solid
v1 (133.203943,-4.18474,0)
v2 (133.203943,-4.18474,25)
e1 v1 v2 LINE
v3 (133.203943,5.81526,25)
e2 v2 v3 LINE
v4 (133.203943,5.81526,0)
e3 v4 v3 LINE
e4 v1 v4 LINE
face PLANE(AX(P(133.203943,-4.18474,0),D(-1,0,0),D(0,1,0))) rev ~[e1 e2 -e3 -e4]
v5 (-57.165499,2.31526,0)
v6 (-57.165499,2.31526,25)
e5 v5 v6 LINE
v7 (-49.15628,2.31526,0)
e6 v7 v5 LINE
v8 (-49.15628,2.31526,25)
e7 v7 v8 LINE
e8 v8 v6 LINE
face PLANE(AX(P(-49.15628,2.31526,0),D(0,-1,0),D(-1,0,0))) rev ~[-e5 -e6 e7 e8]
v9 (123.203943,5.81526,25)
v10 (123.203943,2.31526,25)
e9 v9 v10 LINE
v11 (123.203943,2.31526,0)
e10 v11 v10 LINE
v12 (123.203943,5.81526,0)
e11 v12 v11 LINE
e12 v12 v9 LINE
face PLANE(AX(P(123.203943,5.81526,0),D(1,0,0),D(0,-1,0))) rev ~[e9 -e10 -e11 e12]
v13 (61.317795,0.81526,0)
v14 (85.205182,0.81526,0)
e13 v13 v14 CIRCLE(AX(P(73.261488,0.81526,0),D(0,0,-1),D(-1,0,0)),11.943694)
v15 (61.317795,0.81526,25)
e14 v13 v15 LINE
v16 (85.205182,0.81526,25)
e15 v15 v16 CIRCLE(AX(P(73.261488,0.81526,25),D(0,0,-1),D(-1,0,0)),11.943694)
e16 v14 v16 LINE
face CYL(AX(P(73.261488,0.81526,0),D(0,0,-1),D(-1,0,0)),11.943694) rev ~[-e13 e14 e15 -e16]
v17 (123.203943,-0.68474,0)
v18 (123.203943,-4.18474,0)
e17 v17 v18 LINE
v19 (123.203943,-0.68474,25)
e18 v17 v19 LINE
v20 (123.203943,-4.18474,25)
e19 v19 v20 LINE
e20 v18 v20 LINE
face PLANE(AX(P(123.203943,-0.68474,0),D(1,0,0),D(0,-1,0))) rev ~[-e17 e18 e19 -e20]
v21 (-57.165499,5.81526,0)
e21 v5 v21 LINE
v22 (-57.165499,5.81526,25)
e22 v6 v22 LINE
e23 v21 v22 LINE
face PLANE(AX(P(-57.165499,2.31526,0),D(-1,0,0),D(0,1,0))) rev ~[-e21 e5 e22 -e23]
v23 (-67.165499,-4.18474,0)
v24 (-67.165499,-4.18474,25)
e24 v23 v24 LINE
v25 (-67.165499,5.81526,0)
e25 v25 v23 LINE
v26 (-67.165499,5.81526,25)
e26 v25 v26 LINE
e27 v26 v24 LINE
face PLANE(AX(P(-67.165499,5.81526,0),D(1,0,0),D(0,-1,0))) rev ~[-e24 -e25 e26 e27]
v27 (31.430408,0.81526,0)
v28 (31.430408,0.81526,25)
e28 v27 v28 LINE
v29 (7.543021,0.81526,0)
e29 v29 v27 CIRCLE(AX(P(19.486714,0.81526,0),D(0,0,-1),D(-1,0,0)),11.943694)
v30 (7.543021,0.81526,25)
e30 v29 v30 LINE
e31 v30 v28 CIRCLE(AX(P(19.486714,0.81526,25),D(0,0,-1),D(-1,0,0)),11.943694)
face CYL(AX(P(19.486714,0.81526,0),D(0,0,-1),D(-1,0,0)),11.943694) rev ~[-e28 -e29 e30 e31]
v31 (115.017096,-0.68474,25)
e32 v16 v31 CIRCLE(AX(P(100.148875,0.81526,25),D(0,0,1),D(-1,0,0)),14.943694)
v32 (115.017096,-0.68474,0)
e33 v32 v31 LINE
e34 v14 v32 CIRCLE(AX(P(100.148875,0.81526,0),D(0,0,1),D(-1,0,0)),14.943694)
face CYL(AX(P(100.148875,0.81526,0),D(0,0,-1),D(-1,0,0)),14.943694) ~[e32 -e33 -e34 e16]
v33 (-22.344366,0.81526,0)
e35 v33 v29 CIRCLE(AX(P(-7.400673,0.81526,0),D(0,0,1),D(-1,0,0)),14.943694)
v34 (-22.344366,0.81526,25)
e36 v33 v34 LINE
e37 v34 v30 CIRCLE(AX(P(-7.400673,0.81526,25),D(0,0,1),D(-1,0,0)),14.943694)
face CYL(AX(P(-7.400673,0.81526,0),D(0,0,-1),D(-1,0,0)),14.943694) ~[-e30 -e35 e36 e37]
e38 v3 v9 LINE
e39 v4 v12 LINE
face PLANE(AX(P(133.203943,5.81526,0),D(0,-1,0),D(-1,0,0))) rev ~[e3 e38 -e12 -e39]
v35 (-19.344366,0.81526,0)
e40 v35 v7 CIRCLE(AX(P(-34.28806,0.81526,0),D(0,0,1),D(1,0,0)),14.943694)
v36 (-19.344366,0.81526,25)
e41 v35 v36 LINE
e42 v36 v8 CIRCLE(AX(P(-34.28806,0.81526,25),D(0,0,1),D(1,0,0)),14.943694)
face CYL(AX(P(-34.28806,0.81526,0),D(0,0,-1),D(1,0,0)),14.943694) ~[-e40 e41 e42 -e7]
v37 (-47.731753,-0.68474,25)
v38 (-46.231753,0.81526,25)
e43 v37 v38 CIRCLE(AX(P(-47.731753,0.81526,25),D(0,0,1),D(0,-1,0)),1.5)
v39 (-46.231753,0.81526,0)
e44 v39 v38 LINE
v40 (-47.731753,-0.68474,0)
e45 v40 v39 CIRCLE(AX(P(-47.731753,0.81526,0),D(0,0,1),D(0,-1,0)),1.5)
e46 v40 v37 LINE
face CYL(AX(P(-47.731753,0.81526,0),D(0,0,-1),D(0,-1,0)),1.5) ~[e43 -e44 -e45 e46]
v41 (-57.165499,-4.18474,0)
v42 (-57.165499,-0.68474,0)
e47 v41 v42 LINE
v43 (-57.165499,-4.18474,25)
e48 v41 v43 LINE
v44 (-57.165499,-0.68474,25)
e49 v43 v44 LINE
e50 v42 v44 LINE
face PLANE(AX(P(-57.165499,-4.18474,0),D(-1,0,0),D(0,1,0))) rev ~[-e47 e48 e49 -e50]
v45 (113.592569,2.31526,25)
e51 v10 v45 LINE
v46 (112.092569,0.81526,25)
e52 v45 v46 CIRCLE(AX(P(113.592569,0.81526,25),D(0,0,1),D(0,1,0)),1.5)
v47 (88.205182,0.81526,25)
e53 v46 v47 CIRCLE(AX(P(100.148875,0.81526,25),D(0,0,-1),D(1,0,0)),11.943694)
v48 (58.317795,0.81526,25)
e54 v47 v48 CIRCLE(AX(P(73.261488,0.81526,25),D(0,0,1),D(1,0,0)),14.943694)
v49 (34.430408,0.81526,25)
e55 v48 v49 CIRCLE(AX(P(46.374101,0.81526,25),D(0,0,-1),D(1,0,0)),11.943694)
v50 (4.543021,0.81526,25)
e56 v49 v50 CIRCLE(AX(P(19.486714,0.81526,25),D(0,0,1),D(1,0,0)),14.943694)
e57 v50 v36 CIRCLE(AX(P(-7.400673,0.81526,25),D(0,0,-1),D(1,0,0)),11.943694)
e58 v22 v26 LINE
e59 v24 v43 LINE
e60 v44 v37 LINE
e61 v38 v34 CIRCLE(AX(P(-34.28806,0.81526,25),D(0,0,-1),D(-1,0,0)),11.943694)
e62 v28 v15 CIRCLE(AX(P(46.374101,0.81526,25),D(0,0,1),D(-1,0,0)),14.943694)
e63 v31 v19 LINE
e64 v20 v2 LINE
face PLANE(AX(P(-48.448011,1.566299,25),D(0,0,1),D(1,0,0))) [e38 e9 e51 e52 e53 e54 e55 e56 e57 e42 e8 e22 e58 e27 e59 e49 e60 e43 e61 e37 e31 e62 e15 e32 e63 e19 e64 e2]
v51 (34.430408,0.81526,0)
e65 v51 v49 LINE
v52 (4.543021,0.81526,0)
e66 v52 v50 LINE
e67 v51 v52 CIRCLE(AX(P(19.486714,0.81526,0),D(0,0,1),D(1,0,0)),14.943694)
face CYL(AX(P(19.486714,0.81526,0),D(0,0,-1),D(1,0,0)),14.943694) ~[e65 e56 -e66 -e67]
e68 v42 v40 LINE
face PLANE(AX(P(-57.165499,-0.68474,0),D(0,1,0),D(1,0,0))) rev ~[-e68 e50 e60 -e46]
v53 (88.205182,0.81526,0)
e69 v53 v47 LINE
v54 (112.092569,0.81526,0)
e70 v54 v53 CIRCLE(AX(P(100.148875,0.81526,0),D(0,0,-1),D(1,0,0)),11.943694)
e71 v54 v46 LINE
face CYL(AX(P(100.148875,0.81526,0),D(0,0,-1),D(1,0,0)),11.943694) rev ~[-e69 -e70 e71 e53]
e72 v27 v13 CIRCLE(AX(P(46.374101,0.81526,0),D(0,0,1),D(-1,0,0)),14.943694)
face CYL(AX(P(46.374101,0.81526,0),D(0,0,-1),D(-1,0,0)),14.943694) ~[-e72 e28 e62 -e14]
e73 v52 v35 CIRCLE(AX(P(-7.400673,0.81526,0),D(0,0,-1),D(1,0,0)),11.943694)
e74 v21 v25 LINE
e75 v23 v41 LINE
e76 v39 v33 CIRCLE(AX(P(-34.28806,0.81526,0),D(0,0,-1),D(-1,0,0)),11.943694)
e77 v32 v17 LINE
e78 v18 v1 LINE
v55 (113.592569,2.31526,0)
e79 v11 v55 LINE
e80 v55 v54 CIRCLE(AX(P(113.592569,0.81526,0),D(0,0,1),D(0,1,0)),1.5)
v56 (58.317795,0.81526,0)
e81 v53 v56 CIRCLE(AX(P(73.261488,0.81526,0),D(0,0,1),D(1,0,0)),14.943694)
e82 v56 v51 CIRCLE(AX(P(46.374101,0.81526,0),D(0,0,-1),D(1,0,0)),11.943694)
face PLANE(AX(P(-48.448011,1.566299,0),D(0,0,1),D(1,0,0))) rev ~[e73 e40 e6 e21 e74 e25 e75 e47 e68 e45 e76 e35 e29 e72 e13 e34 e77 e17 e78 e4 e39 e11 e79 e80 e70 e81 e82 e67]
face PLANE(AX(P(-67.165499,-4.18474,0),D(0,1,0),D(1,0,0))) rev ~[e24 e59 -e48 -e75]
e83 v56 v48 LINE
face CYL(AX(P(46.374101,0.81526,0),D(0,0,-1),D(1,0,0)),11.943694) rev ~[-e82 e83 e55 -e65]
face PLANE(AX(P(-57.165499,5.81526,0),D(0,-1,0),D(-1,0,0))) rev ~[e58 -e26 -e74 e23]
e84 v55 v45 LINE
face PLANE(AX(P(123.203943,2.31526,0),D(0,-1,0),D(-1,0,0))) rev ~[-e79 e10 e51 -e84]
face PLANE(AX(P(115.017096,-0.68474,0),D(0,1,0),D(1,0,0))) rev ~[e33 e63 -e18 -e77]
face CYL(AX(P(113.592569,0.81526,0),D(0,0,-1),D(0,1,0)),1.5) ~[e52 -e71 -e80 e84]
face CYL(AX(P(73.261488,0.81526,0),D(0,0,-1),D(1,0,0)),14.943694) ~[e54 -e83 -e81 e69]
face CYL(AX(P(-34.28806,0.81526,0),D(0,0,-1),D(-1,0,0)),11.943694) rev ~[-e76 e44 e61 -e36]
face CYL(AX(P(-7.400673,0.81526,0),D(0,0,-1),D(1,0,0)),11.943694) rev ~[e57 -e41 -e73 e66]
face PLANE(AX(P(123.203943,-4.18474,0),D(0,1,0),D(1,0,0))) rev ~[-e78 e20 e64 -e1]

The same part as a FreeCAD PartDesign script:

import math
import FreeCAD as App
import Part
import Sketcher

doc = App.newDocument("Part")
params = doc.addObject("Spreadsheet::Sheet", "Params")
for row, (alias, value) in enumerate([
    ("sketch1_radius", "1.5 mm"),
    ("sketch1_width", "10 mm"),
    ("pad1_length", "25 mm"),
], start=1):
    params.set(f"A{row}", alias)
    params.set(f"B{row}", "=" + value)
    params.setAlias(f"B{row}", alias)

body = doc.addObject("PartDesign::Body", "Body")

# Sketch on XY plane
sketch1 = doc.addObject("Sketcher::SketchObject", "Sketch")
body.addObject(sketch1)
sketch1.AttachmentSupport = (doc.XY_Plane, [""])
sketch1.MapMode = "FlatFace"
sketch1.addGeometry([
    Part.ArcOfCircle(Part.Circle(App.Vector(46.4, 0.8, 0), App.Vector(0, 0, 1), 14.9), math.radians(180), math.radians(360)),  # 0
    Part.ArcOfCircle(Part.Circle(App.Vector(73.3, 0.8, 0), App.Vector(0, 0, 1), 11.9), math.radians(0), math.radians(180)),  # 1
    Part.ArcOfCircle(Part.Circle(App.Vector(100.1, 0.8, 0), App.Vector(0, 0, 1), 14.9), math.radians(180), math.radians(354)),  # 2
    Part.LineSegment(App.Vector(115, -0.7, 0), App.Vector(123.2, -0.7, 0)),  # 3
    Part.LineSegment(App.Vector(123.2, -0.7, 0), App.Vector(123.2, -4.2, 0)),  # 4
    Part.LineSegment(App.Vector(123.2, -4.2, 0), App.Vector(133.2, -4.2, 0)),  # 5
    Part.LineSegment(App.Vector(133.2, -4.2, 0), App.Vector(133.2, 5.8, 0)),  # 6
    Part.LineSegment(App.Vector(133.2, 5.8, 0), App.Vector(123.2, 5.8, 0)),  # 7
    Part.LineSegment(App.Vector(123.2, 5.8, 0), App.Vector(123.2, 2.3, 0)),  # 8
    Part.LineSegment(App.Vector(123.2, 2.3, 0), App.Vector(113.6, 2.3, 0)),  # 9
    Part.ArcOfCircle(Part.Circle(App.Vector(113.6, 0.8, 0), App.Vector(0, 0, 1), 1.5), math.radians(90), math.radians(180)),  # 10
    Part.ArcOfCircle(Part.Circle(App.Vector(100.1, 0.8, 0), App.Vector(0, 0, 1), 11.9), math.radians(180), math.radians(360)),  # 11
    Part.ArcOfCircle(Part.Circle(App.Vector(73.3, 0.8, 0), App.Vector(0, 0, 1), 14.9), math.radians(0), math.radians(180)),  # 12
    Part.ArcOfCircle(Part.Circle(App.Vector(46.4, 0.8, 0), App.Vector(0, 0, 1), 11.9), math.radians(180), math.radians(360)),  # 13
    Part.ArcOfCircle(Part.Circle(App.Vector(19.5, 0.8, 0), App.Vector(0, 0, 1), 14.9), math.radians(0), math.radians(180)),  # 14
    Part.ArcOfCircle(Part.Circle(App.Vector(-7.4, 0.8, 0), App.Vector(0, 0, 1), 11.9), math.radians(180), math.radians(360)),  # 15
    Part.ArcOfCircle(Part.Circle(App.Vector(-34.3, 0.8, 0), App.Vector(0, 0, 1), 14.9), math.radians(0), math.radians(174)),  # 16
    Part.LineSegment(App.Vector(-49.2, 2.3, 0), App.Vector(-57.2, 2.3, 0)),  # 17
    Part.LineSegment(App.Vector(-57.2, 2.3, 0), App.Vector(-57.2, 5.8, 0)),  # 18
    Part.LineSegment(App.Vector(-57.2, 5.8, 0), App.Vector(-67.2, 5.8, 0)),  # 19
    Part.LineSegment(App.Vector(-67.2, 5.8, 0), App.Vector(-67.2, -4.2, 0)),  # 20
    Part.LineSegment(App.Vector(-67.2, -4.2, 0), App.Vector(-57.2, -4.2, 0)),  # 21
    Part.LineSegment(App.Vector(-57.2, -4.2, 0), App.Vector(-57.2, -0.7, 0)),  # 22
    Part.LineSegment(App.Vector(-57.2, -0.7, 0), App.Vector(-47.7, -0.7, 0)),  # 23
    Part.ArcOfCircle(Part.Circle(App.Vector(-47.7, 0.8, 0), App.Vector(0, 0, 1), 1.5), math.radians(-90), math.radians(0)),  # 24
    Part.ArcOfCircle(Part.Circle(App.Vector(-34.3, 0.8, 0), App.Vector(0, 0, 1), 11.9), math.radians(0), math.radians(180)),  # 25
    Part.ArcOfCircle(Part.Circle(App.Vector(-7.4, 0.8, 0), App.Vector(0, 0, 1), 14.9), math.radians(180), math.radians(360)),  # 26
    Part.ArcOfCircle(Part.Circle(App.Vector(19.5, 0.8, 0), App.Vector(0, 0, 1), 11.9), math.radians(0), math.radians(180)),  # 27
], False)
sketch1.addConstraint([
    Sketcher.Constraint("Tangent", 0, 2, 1, 2),
    Sketcher.Constraint("Tangent", 1, 1, 2, 1),
    Sketcher.Constraint("Coincident", 2, 2, 3, 1),
    Sketcher.Constraint("Coincident", 3, 2, 4, 1),
    Sketcher.Constraint("Coincident", 4, 2, 5, 1),
    Sketcher.Constraint("Coincident", 5, 2, 6, 1),
    Sketcher.Constraint("Coincident", 6, 2, 7, 1),
    Sketcher.Constraint("Coincident", 7, 2, 8, 1),
    Sketcher.Constraint("Coincident", 8, 2, 9, 1),
    Sketcher.Constraint("Tangent", 9, 2, 10, 1),
    Sketcher.Constraint("Tangent", 10, 2, 11, 2),
    Sketcher.Constraint("Tangent", 11, 1, 12, 1),
    Sketcher.Constraint("Tangent", 12, 2, 13, 2),
    Sketcher.Constraint("Tangent", 13, 1, 14, 1),
    Sketcher.Constraint("Tangent", 14, 2, 15, 2),
    Sketcher.Constraint("Tangent", 15, 1, 16, 1),
    Sketcher.Constraint("Coincident", 16, 2, 17, 1),
    Sketcher.Constraint("Coincident", 17, 2, 18, 1),
    Sketcher.Constraint("Coincident", 18, 2, 19, 1),
    Sketcher.Constraint("Coincident", 19, 2, 20, 1),
    Sketcher.Constraint("Coincident", 20, 2, 21, 1),
    Sketcher.Constraint("Coincident", 21, 2, 22, 1),
    Sketcher.Constraint("Coincident", 22, 2, 23, 1),
    Sketcher.Constraint("Tangent", 23, 2, 24, 1),
    Sketcher.Constraint("Tangent", 24, 2, 25, 2),
    Sketcher.Constraint("Tangent", 25, 1, 26, 1),
    Sketcher.Constraint("Tangent", 26, 2, 27, 2),
    Sketcher.Constraint("Tangent", 27, 1, 0, 1),
    Sketcher.Constraint("Horizontal", 3),
    Sketcher.Constraint("Vertical", 4),
    Sketcher.Constraint("Horizontal", 5),
    Sketcher.Constraint("Vertical", 6),
    Sketcher.Constraint("Horizontal", 7),
    Sketcher.Constraint("Vertical", 8),
    Sketcher.Constraint("Horizontal", 9),
    Sketcher.Constraint("Horizontal", 17),
    Sketcher.Constraint("Vertical", 18),
    Sketcher.Constraint("Horizontal", 19),
    Sketcher.Constraint("Vertical", 20),
    Sketcher.Constraint("Horizontal", 21),
    Sketcher.Constraint("Vertical", 22),
    Sketcher.Constraint("Horizontal", 23),
    Sketcher.Constraint("Coincident", 11, 3, 2, 3),
    Sketcher.Constraint("Coincident", 12, 3, 1, 3),
    Sketcher.Constraint("Coincident", 13, 3, 0, 3),
    Sketcher.Constraint("Coincident", 25, 3, 16, 3),
    Sketcher.Constraint("Coincident", 26, 3, 15, 3),
    Sketcher.Constraint("Coincident", 27, 3, 14, 3),
    Sketcher.Constraint("Equal", 0, 2),
    Sketcher.Constraint("Equal", 1, 11),
    Sketcher.Constraint("Equal", 12, 14),
    Sketcher.Constraint("Equal", 13, 15),
    Sketcher.Constraint("Equal", 14, 16),
    Sketcher.Constraint("Equal", 10, 24),
    Sketcher.Constraint("Horizontal", 0, 3, 1, 3),
    Sketcher.Constraint("Horizontal", 1, 3, 2, 3),
    Sketcher.Constraint("Horizontal", 2, 3, 10, 3),
    Sketcher.Constraint("Horizontal", 13, 3, 14, 3),
    Sketcher.Constraint("Horizontal", 14, 3, 15, 3),
    Sketcher.Constraint("Horizontal", 15, 3, 16, 3),
    Sketcher.Constraint("Horizontal", 16, 3, 24, 3),
    Sketcher.Constraint("Horizontal", 9, 2, 16, 2),
    Sketcher.Constraint("Horizontal", 7, 2, 18, 2),
    Sketcher.Constraint("Horizontal", 5, 2, 20, 2),
    Sketcher.Constraint("Horizontal", 3, 2, 22, 2),
    Sketcher.Constraint("Vertical", 4, 2, 7, 2),
    Sketcher.Constraint("Vertical", 18, 2, 21, 2),
    Sketcher.Constraint("Equal", 7, 19),
    Sketcher.Constraint("Equal", 21, 6),
    Sketcher.Constraint("Equal", 4, 8),
    Sketcher.Constraint("Radius", 10, 1.5),
    Sketcher.Constraint("DistanceX", 5, 1, 5, 2, 10.0),
    Sketcher.Constraint("DistanceX", 1, 1, 11, 1, 3.0),
    Sketcher.Constraint("Radius", 0, 14.943694),
    Sketcher.Constraint("DistanceX", 17, 2, 17, 1, 8.009218),
    Sketcher.Constraint("DistanceX", -1, 1, 0, 3, 46.374101),
    Sketcher.Constraint("DistanceX", 3, 1, 3, 2, 8.186848),
    Sketcher.Constraint("DistanceY", -1, 1, 0, 3, 0.81526),
])
sketch1.setExpression("Constraints[70]", "Params.sketch1_radius")
sketch1.setExpression("Constraints[71]", "Params.sketch1_width")
pad1 = doc.addObject("PartDesign::Pad", "Pad")
body.addObject(pad1)
pad1.Profile = sketch1
pad1.setExpression("Length", "Params.pad1_length")

doc.recompute()
